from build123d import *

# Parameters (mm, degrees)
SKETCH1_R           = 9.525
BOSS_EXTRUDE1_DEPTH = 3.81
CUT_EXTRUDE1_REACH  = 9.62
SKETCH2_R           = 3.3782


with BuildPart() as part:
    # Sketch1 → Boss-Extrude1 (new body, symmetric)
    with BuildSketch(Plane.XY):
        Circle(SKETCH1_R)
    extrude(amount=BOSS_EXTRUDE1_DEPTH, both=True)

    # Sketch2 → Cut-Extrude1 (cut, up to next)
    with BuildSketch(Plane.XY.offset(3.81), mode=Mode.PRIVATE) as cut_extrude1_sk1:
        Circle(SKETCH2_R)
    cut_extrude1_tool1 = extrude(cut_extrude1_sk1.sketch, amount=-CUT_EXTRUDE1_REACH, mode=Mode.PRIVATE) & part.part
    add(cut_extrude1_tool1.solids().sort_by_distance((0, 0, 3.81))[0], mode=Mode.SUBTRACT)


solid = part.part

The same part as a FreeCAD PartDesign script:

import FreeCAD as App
import Part
import Sketcher

V = App.Vector
Q = App.Units.Quantity

doc = App.newDocument("Part")
body = doc.addObject("PartDesign::Body", "Body")

# Sketch on XY plane
sketch1 = body.newObject("Sketcher::SketchObject", "Sketch")
sketch1.AttachmentSupport = (doc.getObject("XY_Plane"), [""])
sketch1.MapMode = "FlatFace"
sketch1.addGeometry(Part.Circle(V(0, 0, 0), V(0, 0, 1), 10), False)
sketch1.addConstraint([
    Sketcher.Constraint("Coincident", 0, 3, -1, 1),
    Sketcher.Constraint("Diameter", 0, Q("0.75 in")),
])
pad1 = body.newObject("PartDesign::Pad", "Pad")
pad1.Profile = sketch1
pad1.Length = Q("0.3 in")
pad1.Midplane = True

# Sketch on XY plane
sketch2 = body.newObject("Sketcher::SketchObject", "Sketch001")
sketch2.AttachmentSupport = (doc.getObject("XY_Plane"), [""])
sketch2.MapMode = "FlatFace"
sketch2.AttachmentOffset = App.Placement(V(0, 0, 0.15 * 25.4), App.Rotation())
sketch2.addGeometry(Part.Circle(V(0, 0, 0), V(0, 0, 1), 3.4), False)
sketch2.addConstraint([
    Sketcher.Constraint("Coincident", 0, 3, -1, 1),
    Sketcher.Constraint("Diameter", 0, Q("0.266 in")),
])
pocket1 = body.newObject("PartDesign::Pocket", "Pocket")
pocket1.Profile = sketch2
pocket1.Type = "UpToFirst"

doc.recompute()
